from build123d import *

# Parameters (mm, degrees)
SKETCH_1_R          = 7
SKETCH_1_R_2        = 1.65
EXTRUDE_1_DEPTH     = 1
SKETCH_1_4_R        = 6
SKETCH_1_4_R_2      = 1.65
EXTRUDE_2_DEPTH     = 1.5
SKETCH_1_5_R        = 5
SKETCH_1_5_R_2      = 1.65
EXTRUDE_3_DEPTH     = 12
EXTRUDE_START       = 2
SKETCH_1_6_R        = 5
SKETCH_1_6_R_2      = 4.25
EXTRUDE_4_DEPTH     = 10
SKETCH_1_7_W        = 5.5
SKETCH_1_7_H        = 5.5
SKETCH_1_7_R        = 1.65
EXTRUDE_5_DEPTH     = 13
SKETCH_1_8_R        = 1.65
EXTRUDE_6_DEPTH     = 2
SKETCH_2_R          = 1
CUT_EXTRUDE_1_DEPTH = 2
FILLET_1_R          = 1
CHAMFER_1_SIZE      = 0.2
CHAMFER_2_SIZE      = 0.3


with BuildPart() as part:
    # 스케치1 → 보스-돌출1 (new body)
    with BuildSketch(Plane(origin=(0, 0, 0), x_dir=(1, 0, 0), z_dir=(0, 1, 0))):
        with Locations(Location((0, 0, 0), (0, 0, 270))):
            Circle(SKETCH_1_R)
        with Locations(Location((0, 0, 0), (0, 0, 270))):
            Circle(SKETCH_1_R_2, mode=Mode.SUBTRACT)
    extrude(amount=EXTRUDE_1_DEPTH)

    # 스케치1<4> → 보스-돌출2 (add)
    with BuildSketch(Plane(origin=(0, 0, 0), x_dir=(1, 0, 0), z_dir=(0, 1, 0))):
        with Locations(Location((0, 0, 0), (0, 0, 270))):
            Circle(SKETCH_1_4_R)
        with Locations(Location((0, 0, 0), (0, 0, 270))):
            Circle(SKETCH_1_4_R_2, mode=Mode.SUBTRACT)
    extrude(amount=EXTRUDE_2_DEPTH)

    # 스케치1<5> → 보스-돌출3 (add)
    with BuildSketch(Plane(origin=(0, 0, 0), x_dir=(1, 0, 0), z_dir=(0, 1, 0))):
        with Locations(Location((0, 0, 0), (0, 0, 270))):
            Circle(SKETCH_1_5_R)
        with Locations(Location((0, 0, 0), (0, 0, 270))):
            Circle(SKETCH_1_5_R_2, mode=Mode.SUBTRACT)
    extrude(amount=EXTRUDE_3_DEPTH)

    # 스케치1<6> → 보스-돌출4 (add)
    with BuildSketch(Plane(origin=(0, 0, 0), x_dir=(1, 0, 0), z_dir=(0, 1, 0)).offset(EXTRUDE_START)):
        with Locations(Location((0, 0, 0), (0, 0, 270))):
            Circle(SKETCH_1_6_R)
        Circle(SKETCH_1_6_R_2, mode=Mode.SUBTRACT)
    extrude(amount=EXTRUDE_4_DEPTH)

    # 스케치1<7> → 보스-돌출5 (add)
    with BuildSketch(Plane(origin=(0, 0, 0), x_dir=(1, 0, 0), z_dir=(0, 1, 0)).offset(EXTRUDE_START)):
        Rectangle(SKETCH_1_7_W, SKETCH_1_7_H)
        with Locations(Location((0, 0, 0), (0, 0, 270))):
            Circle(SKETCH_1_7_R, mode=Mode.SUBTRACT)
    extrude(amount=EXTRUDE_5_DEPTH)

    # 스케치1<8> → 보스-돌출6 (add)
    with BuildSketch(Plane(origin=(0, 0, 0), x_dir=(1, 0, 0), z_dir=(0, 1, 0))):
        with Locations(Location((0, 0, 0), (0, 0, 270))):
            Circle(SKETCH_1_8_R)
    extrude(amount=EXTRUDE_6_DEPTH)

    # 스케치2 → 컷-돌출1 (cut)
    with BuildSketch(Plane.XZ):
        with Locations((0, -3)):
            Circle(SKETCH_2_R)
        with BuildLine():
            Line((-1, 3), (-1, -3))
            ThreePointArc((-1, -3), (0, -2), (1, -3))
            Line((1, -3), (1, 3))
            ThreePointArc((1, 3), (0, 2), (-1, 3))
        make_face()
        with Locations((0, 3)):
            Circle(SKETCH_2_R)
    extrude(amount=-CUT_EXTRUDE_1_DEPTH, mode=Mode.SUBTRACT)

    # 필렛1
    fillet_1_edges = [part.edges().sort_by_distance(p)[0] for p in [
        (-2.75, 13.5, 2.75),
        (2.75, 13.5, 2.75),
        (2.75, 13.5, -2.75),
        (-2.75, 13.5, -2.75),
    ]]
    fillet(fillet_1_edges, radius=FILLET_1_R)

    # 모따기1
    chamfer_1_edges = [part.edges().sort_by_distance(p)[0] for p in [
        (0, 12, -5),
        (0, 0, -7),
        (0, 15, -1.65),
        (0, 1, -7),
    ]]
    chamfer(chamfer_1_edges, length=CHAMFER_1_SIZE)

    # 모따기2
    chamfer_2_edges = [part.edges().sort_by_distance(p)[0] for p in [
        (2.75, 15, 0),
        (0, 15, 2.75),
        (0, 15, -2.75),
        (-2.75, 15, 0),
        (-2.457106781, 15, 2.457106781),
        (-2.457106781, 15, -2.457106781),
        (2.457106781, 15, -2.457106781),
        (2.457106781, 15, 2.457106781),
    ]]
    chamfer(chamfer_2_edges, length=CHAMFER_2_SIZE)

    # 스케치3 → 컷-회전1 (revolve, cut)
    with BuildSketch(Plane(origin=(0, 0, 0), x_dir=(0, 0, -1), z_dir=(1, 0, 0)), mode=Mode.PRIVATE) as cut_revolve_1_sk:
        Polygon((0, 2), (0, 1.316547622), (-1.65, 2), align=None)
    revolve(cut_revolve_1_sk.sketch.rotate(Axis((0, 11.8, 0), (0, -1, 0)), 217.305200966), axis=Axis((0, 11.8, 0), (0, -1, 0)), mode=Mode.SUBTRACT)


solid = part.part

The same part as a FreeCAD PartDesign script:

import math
import FreeCAD as App
import Part
import Sketcher

V = App.Vector
Q = App.Units.Quantity


def edges_at(feature, points):
    """Names of the edges that pass closest to the given points."""
    edges = feature.Shape.Edges
    near = lambda p: min(range(len(edges)), key=lambda i: edges[i].distToShape(Part.Vertex(*p))[0])
    return sorted({f"Edge{near(p) + 1}" for p in points})

doc = App.newDocument("Part")
params = doc.addObject("Spreadsheet::Sheet", "Params")
for row, (alias, value) in enumerate([
    ("sketch1_diameter", "14 mm"),
    ("sketch1_diameter2", "3.3 mm"),
    ("pad1_length", "1 mm"),
    ("sketch2_diameter", "12 mm"),
    ("sketch2_diameter2", "3.3 mm"),
    ("pad2_length", "1.5 mm"),
    ("sketch3_diameter", "10 mm"),
    ("sketch3_diameter2", "3.3 mm"),
    ("pad3_length", "12 mm"),
    ("sketch4_diameter", "10 mm"),
    ("sketch4_diameter2", "8.5 mm"),
    ("pad4_length", "10 mm"),
    ("sketch5_diameter", "3.3 mm"),
    ("sketch5_width", "5.5 mm"),
    ("pad5_length", "13 mm"),
    ("sketch6_diameter", "3.3 mm"),
    ("pad6_length", "2 mm"),
    ("sketch7_radius", "1 mm"),
    ("sketch7_height", "6 mm"),
    ("pocket1_length", "2 mm"),
    ("fillet_radius", "1 mm"),
    ("chamfer_size", "0.2 mm"),
    ("chamfer2_size", "0.3 mm"),
    ("sketch8_height", "1.65 mm"),
    ("groove_angle", "360 deg"),
], start=1):
    params.set(f"A{row}", alias)
    params.set(f"B{row}", "=" + value)
    params.setAlias(f"B{row}", alias)

body = doc.addObject("PartDesign::Body", "Body")

# Sketch on XZ plane
sketch1 = doc.addObject("Sketcher::SketchObject", "Sketch")
body.addObject(sketch1)
sketch1.AttachmentSupport = (doc.XZ_Plane, [""])
sketch1.MapMode = "FlatFace"
sketch1.addGeometry(Part.Circle(V(0, 0, 0), V(0, 0, 1), 7), False)
sketch1.addGeometry(Part.Circle(V(0, 0, 0), V(0, 0, 1), 1.6), False)
sketch1.addConstraint(Sketcher.Constraint("Coincident", 0, 3, -1, 1))
sketch1.addConstraint(Sketcher.Constraint("Coincident", 1, 3, -1, 1))
sketch1.addConstraint(Sketcher.Constraint("Diameter", 0, Q("14 mm")))
sketch1.addConstraint(Sketcher.Constraint("Diameter", 1, Q("3.3 mm")))
sketch1.setExpression("Constraints[2]", "Params.sketch1_diameter")
sketch1.setExpression("Constraints[3]", "Params.sketch1_diameter2")
pad1 = doc.addObject("PartDesign::Pad", "Pad")
body.addObject(pad1)
pad1.Profile = sketch1
pad1.setExpression("Length", "Params.pad1_length")
pad1.Reversed = True

# Sketch on XZ plane
sketch2 = doc.addObject("Sketcher::SketchObject", "Sketch001")
body.addObject(sketch2)
sketch2.AttachmentSupport = (doc.XZ_Plane, [""])
sketch2.MapMode = "FlatFace"
sketch2.addGeometry(Part.Circle(V(0, 0, 0), V(0, 0, 1), 6), False)
sketch2.addGeometry(Part.Circle(V(0, 0, 0), V(0, 0, 1), 1.6), False)
sketch2.addConstraint(Sketcher.Constraint("Coincident", 0, 3, -1, 1))
sketch2.addConstraint(Sketcher.Constraint("Coincident", 1, 3, -1, 1))
sketch2.addConstraint(Sketcher.Constraint("Diameter", 0, Q("12 mm")))
sketch2.addConstraint(Sketcher.Constraint("Diameter", 1, Q("3.3 mm")))
sketch2.setExpression("Constraints[2]", "Params.sketch2_diameter")
sketch2.setExpression("Constraints[3]", "Params.sketch2_diameter2")
pad2 = doc.addObject("PartDesign::Pad", "Pad001")
body.addObject(pad2)
pad2.Profile = sketch2
pad2.setExpression("Length", "Params.pad2_length")
pad2.Reversed = True

# Sketch on XZ plane
sketch3 = doc.addObject("Sketcher::SketchObject", "Sketch002")
body.addObject(sketch3)
sketch3.AttachmentSupport = (doc.XZ_Plane, [""])
sketch3.MapMode = "FlatFace"
sketch3.addGeometry(Part.Circle(V(0, 0, 0), V(0, 0, 1), 5), False)
sketch3.addGeometry(Part.Circle(V(0, 0, 0), V(0, 0, 1), 1.6), False)
sketch3.addConstraint(Sketcher.Constraint("Coincident", 0, 3, -1, 1))
sketch3.addConstraint(Sketcher.Constraint("Coincident", 1, 3, -1, 1))
sketch3.addConstraint(Sketcher.Constraint("Diameter", 0, Q("10 mm")))
sketch3.addConstraint(Sketcher.Constraint("Diameter", 1, Q("3.3 mm")))
sketch3.setExpression("Constraints[2]", "Params.sketch3_diameter")
sketch3.setExpression("Constraints[3]", "Params.sketch3_diameter2")
pad3 = doc.addObject("PartDesign::Pad", "Pad002")
body.addObject(pad3)
pad3.Profile = sketch3
pad3.setExpression("Length", "Params.pad3_length")
pad3.Reversed = True

# Sketch on XZ plane
sketch4 = doc.addObject("Sketcher::SketchObject", "Sketch003")
body.addObject(sketch4)
sketch4.AttachmentSupport = (doc.XZ_Plane, [""])
sketch4.MapMode = "FlatFace"
sketch4.AttachmentOffset = App.Placement(V(0, 0, -2), App.Rotation())
sketch4.addGeometry(Part.Circle(V(0, 0, 0), V(0, 0, 1), 5), False)
sketch4.addGeometry(Part.Circle(V(0, 0, 0), V(0, 0, 1), 4.2), False)
sketch4.addConstraint(Sketcher.Constraint("Coincident", 0, 3, -1, 1))
sketch4.addConstraint(Sketcher.Constraint("Coincident", 1, 3, -1, 1))
sketch4.addConstraint(Sketcher.Constraint("Diameter", 0, Q("10 mm")))
sketch4.addConstraint(Sketcher.Constraint("Diameter", 1, Q("8.5 mm")))
sketch4.setExpression("Constraints[2]", "Params.sketch4_diameter")
sketch4.setExpression("Constraints[3]", "Params.sketch4_diameter2")
pad4 = doc.addObject("PartDesign::Pad", "Pad003")
body.addObject(pad4)
pad4.Profile = sketch4
pad4.setExpression("Length", "Params.pad4_length")
pad4.Reversed = True

# Sketch on XZ plane
sketch5 = doc.addObject("Sketcher::SketchObject", "Sketch004")
body.addObject(sketch5)
sketch5.AttachmentSupport = (doc.XZ_Plane, [""])
sketch5.MapMode = "FlatFace"
sketch5.AttachmentOffset = App.Placement(V(0, 0, -2), App.Rotation())
sketch5.addGeometry(Part.LineSegment(V(-2.8, -2.8, 0), V(-2.8, 2.8, 0)), False)
sketch5.addGeometry(Part.LineSegment(V(-2.8, 2.8, 0), V(2.8, 2.8, 0)), False)
sketch5.addGeometry(Part.LineSegment(V(2.8, 2.8, 0), V(2.8, -2.8, 0)), False)
sketch5.addGeometry(Part.LineSegment(V(2.8, -2.8, 0), V(-2.8, -2.8, 0)), False)
sketch5.addGeometry(Part.Circle(V(0, 0, 0), V(0, 0, 1), 1.6), False)
sketch5.addConstraint(Sketcher.Constraint("Coincident", 0, 2, 1, 1))
sketch5.addConstraint(Sketcher.Constraint("Coincident", 1, 2, 2, 1))
sketch5.addConstraint(Sketcher.Constraint("Coincident", 2, 2, 3, 1))
sketch5.addConstraint(Sketcher.Constraint("Coincident", 3, 2, 0, 1))
sketch5.addConstraint(Sketcher.Constraint("Vertical", 0))
sketch5.addConstraint(Sketcher.Constraint("Horizontal", 1))
sketch5.addConstraint(Sketcher.Constraint("Vertical", 2))
sketch5.addConstraint(Sketcher.Constraint("Horizontal", 3))
sketch5.addConstraint(Sketcher.Constraint("Coincident", 4, 3, -1, 1))
sketch5.addConstraint(Sketcher.Constraint("Symmetric", 0, 2, 2, 2, -1, 1))
sketch5.addConstraint(Sketcher.Constraint("Equal", 3, 0))
sketch5.addConstraint(Sketcher.Constraint("Diameter", 4, Q("3.3 mm")))
sketch5.addConstraint(Sketcher.Constraint("DistanceX", 1, 1, 1, 2, Q("5.5 mm")))
sketch5.setExpression("Constraints[11]", "Params.sketch5_diameter")
sketch5.setExpression("Constraints[12]", "Params.sketch5_width")
pad5 = doc.addObject("PartDesign::Pad", "Pad004")
body.addObject(pad5)
pad5.Profile = sketch5
pad5.setExpression("Length", "Params.pad5_length")
pad5.Reversed = True

# Sketch on XZ plane
sketch6 = doc.addObject("Sketcher::SketchObject", "Sketch005")
body.addObject(sketch6)
sketch6.AttachmentSupport = (doc.XZ_Plane, [""])
sketch6.MapMode = "FlatFace"
sketch6.addGeometry(Part.Circle(V(0, 0, 0), V(0, 0, 1), 1.6), False)
sketch6.addConstraint(Sketcher.Constraint("Coincident", 0, 3, -1, 1))
sketch6.addConstraint(Sketcher.Constraint("Diameter", 0, Q("3.3 mm")))
sketch6.setExpression("Constraints[1]", "Params.sketch6_diameter")
pad6 = doc.addObject("PartDesign::Pad", "Pad005")
body.addObject(pad6)
pad6.Profile = sketch6
pad6.setExpression("Length", "Params.pad6_length")
pad6.Reversed = True

# Sketch on XZ plane
sketch7 = doc.addObject("Sketcher::SketchObject", "Sketch006")
body.addObject(sketch7)
sketch7.AttachmentSupport = (doc.XZ_Plane, [""])
sketch7.MapMode = "FlatFace"
sketch7.addGeometry(Part.ArcOfCircle(Part.Circle(V(0, -3, 0), V(0, 0, 1), 1), math.radians(180), math.radians(360)), False)
sketch7.addGeometry(Part.LineSegment(V(1, -3, 0), V(1, 3, 0)), False)
sketch7.addGeometry(Part.ArcOfCircle(Part.Circle(V(0, 3, 0), V(0, 0, 1), 1), math.radians(0), math.radians(180)), False)
sketch7.addGeometry(Part.LineSegment(V(-1, 3, 0), V(-1, -3, 0)), False)
sketch7.addConstraint(Sketcher.Constraint("Tangent", 0, 2, 1, 1))
sketch7.addConstraint(Sketcher.Constraint("Tangent", 1, 2, 2, 1))
sketch7.addConstraint(Sketcher.Constraint("Tangent", 2, 2, 3, 1))
sketch7.addConstraint(Sketcher.Constraint("Tangent", 3, 2, 0, 1))
sketch7.addConstraint(Sketcher.Constraint("Vertical", 1))
sketch7.addConstraint(Sketcher.Constraint("Vertical", 3))
sketch7.addConstraint(Sketcher.Constraint("Symmetric", 0, 3, 2, 3, -1, 1))
sketch7.addConstraint(Sketcher.Constraint("Radius", 0, Q("1 mm")))
sketch7.addConstraint(Sketcher.Constraint("DistanceY", 1, 1, 1, 2, Q("6 mm")))
sketch7.setExpression("Constraints[7]", "Params.sketch7_radius")
sketch7.setExpression("Constraints[8]", "Params.sketch7_height")
pocket1 = doc.addObject("PartDesign::Pocket", "Pocket")
body.addObject(pocket1)
pocket1.Profile = sketch7
pocket1.setExpression("Length", "Params.pocket1_length")
doc.recompute()

fillet = doc.addObject("PartDesign::Fillet", "Fillet")
body.addObject(fillet)
fillet.Base = (pocket1, edges_at(pocket1, [
    (-2.75, 13.5, 2.75),
    (2.75, 13.5, 2.75),
    (2.75, 13.5, -2.75),
    (-2.75, 13.5, -2.75),
]))
fillet.setExpression("Radius", "Params.fillet_radius")
doc.recompute()

chamfer = doc.addObject("PartDesign::Chamfer", "Chamfer")
body.addObject(chamfer)
chamfer.Base = (fillet, edges_at(fillet, [
    (0, 12, -5),
    (0, 0, -7),
    (0, 15, -1.65),
    (0, 1, -7),
]))
chamfer.setExpression("Size", "Params.chamfer_size")
doc.recompute()

chamfer2 = doc.addObject("PartDesign::Chamfer", "Chamfer001")
body.addObject(chamfer2)
chamfer2.Base = (chamfer, edges_at(chamfer, [
    (2.75, 15, 0),
    (0, 15, 2.75),
    (0, 15, -2.75),
    (-2.75, 15, 0),
    (-2.457, 15, 2.457),
    (-2.457, 15, -2.457),
    (2.457, 15, -2.457),
    (2.457, 15, 2.457),
]))
chamfer2.setExpression("Size", "Params.chamfer2_size")

# Sketch on YZ plane
sketch8 = doc.addObject("Sketcher::SketchObject", "Sketch007")
body.addObject(sketch8)
sketch8.AttachmentSupport = (doc.YZ_Plane, [""])
sketch8.MapMode = "FlatFace"
sketch8.addGeometry(Part.LineSegment(V(1.3, 0, 0), V(2, 0, 0)), False)
sketch8.addGeometry(Part.LineSegment(V(2, 0, 0), V(2, 1.6, 0)), False)
sketch8.addGeometry(Part.LineSegment(V(2, 1.6, 0), V(1.3, 0, 0)), False)
sketch8.addConstraint(Sketcher.Constraint("Coincident", 0, 2, 1, 1))
sketch8.addConstraint(Sketcher.Constraint("Coincident", 1, 2, 2, 1))
sketch8.addConstraint(Sketcher.Constraint("Coincident", 2, 2, 0, 1))
sketch8.addConstraint(Sketcher.Constraint("Horizontal", 0))
sketch8.addConstraint(Sketcher.Constraint("Vertical", 1))
sketch8.addConstraint(Sketcher.Constraint("PointOnObject", 0, 2, -1))
sketch8.addConstraint(Sketcher.Constraint("DistanceX", -1, 1, 0, 2, Q("2 mm")))
sketch8.addConstraint(Sketcher.Constraint("Angle", 2, Q("-112.5 deg")))
sketch8.addConstraint(Sketcher.Constraint("DistanceY", 1, 1, 1, 2, Q("1.65 mm")))
sketch8.setExpression("Constraints[8]", "Params.sketch8_height")
groove = doc.addObject("PartDesign::Groove", "Groove")
body.addObject(groove)
groove.Profile = sketch8
groove.ReferenceAxis = (sketch8, ["H_Axis"])
groove.setExpression("Angle", "Params.groove_angle")

doc.recompute()
